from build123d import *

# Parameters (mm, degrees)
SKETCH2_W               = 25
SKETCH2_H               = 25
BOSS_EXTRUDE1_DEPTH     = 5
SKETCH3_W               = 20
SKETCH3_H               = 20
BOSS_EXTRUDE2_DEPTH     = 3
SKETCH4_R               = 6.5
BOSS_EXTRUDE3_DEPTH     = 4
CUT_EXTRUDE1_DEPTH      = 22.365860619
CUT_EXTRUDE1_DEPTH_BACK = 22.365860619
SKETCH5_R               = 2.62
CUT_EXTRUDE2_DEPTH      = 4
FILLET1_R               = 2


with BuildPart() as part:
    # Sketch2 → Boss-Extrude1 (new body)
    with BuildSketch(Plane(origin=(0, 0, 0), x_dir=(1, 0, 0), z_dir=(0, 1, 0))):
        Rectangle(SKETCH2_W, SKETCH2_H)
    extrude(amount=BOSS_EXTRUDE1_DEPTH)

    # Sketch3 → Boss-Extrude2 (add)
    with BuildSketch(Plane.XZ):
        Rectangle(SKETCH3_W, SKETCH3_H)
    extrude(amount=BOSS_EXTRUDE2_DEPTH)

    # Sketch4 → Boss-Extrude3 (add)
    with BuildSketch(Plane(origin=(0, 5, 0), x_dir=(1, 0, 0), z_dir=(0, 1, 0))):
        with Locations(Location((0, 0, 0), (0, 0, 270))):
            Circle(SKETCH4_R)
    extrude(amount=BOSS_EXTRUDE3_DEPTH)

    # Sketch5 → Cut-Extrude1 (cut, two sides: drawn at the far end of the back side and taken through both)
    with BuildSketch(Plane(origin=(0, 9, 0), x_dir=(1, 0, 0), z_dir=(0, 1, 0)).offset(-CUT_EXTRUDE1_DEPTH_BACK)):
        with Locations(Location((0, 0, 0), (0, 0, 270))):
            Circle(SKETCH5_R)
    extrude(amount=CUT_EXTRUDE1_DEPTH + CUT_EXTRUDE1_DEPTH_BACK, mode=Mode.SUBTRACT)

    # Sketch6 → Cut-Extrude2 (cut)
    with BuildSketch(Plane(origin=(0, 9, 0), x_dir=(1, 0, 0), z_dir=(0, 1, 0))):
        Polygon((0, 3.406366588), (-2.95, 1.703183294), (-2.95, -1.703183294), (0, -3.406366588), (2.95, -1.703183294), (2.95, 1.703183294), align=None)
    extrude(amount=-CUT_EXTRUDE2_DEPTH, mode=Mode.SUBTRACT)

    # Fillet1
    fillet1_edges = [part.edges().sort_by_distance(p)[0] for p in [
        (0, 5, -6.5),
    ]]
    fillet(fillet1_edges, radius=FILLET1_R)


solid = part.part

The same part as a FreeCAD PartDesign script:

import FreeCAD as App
import Part
import Sketcher
Q = App.Units.Quantity


def edges_at(feature, points):
    """Names of the edges that pass closest to the given points."""
    edges = feature.Shape.Edges
    near = lambda p: min(range(len(edges)), key=lambda i: edges[i].distToShape(Part.Vertex(*p))[0])
    return sorted({f"Edge{near(p) + 1}" for p in points})

doc = App.newDocument("Part")
body = doc.addObject("PartDesign::Body", "Body")

sketch1 = doc.addObject("Sketcher::SketchObject", "Sketch")
body.addObject(sketch1)
sketch1.AttachmentSupport = (doc.XZ_Plane, [""])
sketch1.MapMode = "FlatFace"
sketch1.addGeometry([
    Part.LineSegment(App.Vector(-12.5, -12.5, 0), App.Vector(-12.5, 12.5, 0)),
    Part.LineSegment(App.Vector(-12.5, 12.5, 0), App.Vector(12.5, 12.5, 0)),
    Part.LineSegment(App.Vector(12.5, 12.5, 0), App.Vector(12.5, -12.5, 0)),
    Part.LineSegment(App.Vector(12.5, -12.5, 0), App.Vector(-12.5, -12.5, 0)),
], False)
sketch1.addConstraint([
    Sketcher.Constraint("Coincident", 0, 2, 1, 1),
    Sketcher.Constraint("Coincident", 1, 2, 2, 1),
    Sketcher.Constraint("Coincident", 2, 2, 3, 1),
    Sketcher.Constraint("Coincident", 3, 2, 0, 1),
    Sketcher.Constraint("Vertical", 0),
    Sketcher.Constraint("Horizontal", 1),
    Sketcher.Constraint("Vertical", 2),
    Sketcher.Constraint("Horizontal", 3),
    Sketcher.Constraint("Symmetric", 0, 2, 2, 2, -1, 1),
    Sketcher.Constraint("Equal", 3, 0),
    Sketcher.Constraint("DistanceX", 1, 1, 1, 2, Q("25 mm")),
])
pad1 = doc.addObject("PartDesign::Pad", "Pad")
body.addObject(pad1)
pad1.Profile = sketch1
pad1.Length = 5
pad1.Reversed = True

sketch2 = doc.addObject("Sketcher::SketchObject", "Sketch001")
body.addObject(sketch2)
sketch2.AttachmentSupport = (doc.XZ_Plane, [""])
sketch2.MapMode = "FlatFace"
sketch2.addGeometry([
    Part.LineSegment(App.Vector(-10, 10, 0), App.Vector(-10, -10, 0)),
    Part.LineSegment(App.Vector(-10, -10, 0), App.Vector(10, -10, 0)),
    Part.LineSegment(App.Vector(10, -10, 0), App.Vector(10, 10, 0)),
    Part.LineSegment(App.Vector(10, 10, 0), App.Vector(-10, 10, 0)),
], False)
sketch2.addConstraint([
    Sketcher.Constraint("Coincident", 0, 2, 1, 1),
    Sketcher.Constraint("Coincident", 1, 2, 2, 1),
    Sketcher.Constraint("Coincident", 2, 2, 3, 1),
    Sketcher.Constraint("Coincident", 3, 2, 0, 1),
    Sketcher.Constraint("Vertical", 0),
    Sketcher.Constraint("Horizontal", 1),
    Sketcher.Constraint("Vertical", 2),
    Sketcher.Constraint("Horizontal", 3),
    Sketcher.Constraint("Symmetric", 0, 2, 2, 2, -1, 1),
    Sketcher.Constraint("Equal", 3, 0),
    Sketcher.Constraint("DistanceX", 1, 1, 1, 2, Q("20 mm")),
])
pad2 = doc.addObject("PartDesign::Pad", "Pad001")
body.addObject(pad2)
pad2.Profile = sketch2
pad2.Length = 3

sketch3 = doc.addObject("Sketcher::SketchObject", "Sketch002")
body.addObject(sketch3)
sketch3.AttachmentSupport = (doc.XZ_Plane, [""])
sketch3.MapMode = "FlatFace"
sketch3.AttachmentOffset = App.Placement(App.Vector(0, 0, -5), App.Rotation())
sketch3.addGeometry(Part.Circle(App.Vector(0, 0, 0), App.Vector(0, 0, 1), 6.5), False)
sketch3.addConstraint([
    Sketcher.Constraint("Coincident", 0, 3, -1, 1),
    Sketcher.Constraint("Diameter", 0, Q("13 mm")),
])
pad3 = doc.addObject("PartDesign::Pad", "Pad002")
body.addObject(pad3)
pad3.Profile = sketch3
pad3.Length = 4
pad3.Reversed = True

sketch4 = doc.addObject("Sketcher::SketchObject", "Sketch003")
body.addObject(sketch4)
sketch4.AttachmentSupport = (doc.XZ_Plane, [""])
sketch4.MapMode = "FlatFace"
sketch4.AttachmentOffset = App.Placement(App.Vector(0, 0, -9), App.Rotation())
sketch4.addGeometry(Part.Circle(App.Vector(0, 0, 0), App.Vector(0, 0, 1), 2.62), False)
sketch4.addConstraint([
    Sketcher.Constraint("Coincident", 0, 3, -1, 1),
    Sketcher.Constraint("Diameter", 0, Q("5.24 mm")),
])
pocket1 = doc.addObject("PartDesign::Pocket", "Pocket")
body.addObject(pocket1)
pocket1.Profile = sketch4
pocket1.Type = "ThroughAll"
pocket1.Midplane = True

sketch5 = doc.addObject("Sketcher::SketchObject", "Sketch004")
body.addObject(sketch5)
sketch5.AttachmentSupport = (doc.XZ_Plane, [""])
sketch5.MapMode = "FlatFace"
sketch5.AttachmentOffset = App.Placement(App.Vector(0, 0, -9), App.Rotation())
sketch5.addGeometry([
    Part.LineSegment(App.Vector(0, -3.406367, 0), App.Vector(-2.95, -1.703183, 0)),
    Part.LineSegment(App.Vector(-2.95, -1.703183, 0), App.Vector(-2.95, 1.703183, 0)),
    Part.LineSegment(App.Vector(-2.95, 1.703183, 0), App.Vector(0, 3.406367, 0)),
    Part.LineSegment(App.Vector(0, 3.406367, 0), App.Vector(2.95, 1.703183, 0)),
    Part.LineSegment(App.Vector(2.95, 1.703183, 0), App.Vector(2.95, -1.703183, 0)),
    Part.LineSegment(App.Vector(2.95, -1.703183, 0), App.Vector(0, -3.406367, 0)),
], False)
sketch5.addConstraint([
    Sketcher.Constraint("Coincident", 0, 2, 1, 1),
    Sketcher.Constraint("Coincident", 1, 2, 2, 1),
    Sketcher.Constraint("Coincident", 2, 2, 3, 1),
    Sketcher.Constraint("Coincident", 3, 2, 4, 1),
    Sketcher.Constraint("Coincident", 4, 2, 5, 1),
    Sketcher.Constraint("Coincident", 5, 2, 0, 1),
    Sketcher.Constraint("Vertical", 1),
    Sketcher.Constraint("Vertical", 4),
    Sketcher.Constraint("Symmetric", 0, 2, 3, 2, -1, 1),
    Sketcher.Constraint("Symmetric", 2, 2, 5, 2, -1, 1),
    Sketcher.Constraint("PointOnObject", 2, 2, -2),
    Sketcher.Constraint("Parallel", 2, 5),
    Sketcher.Constraint("Horizontal", 1, 2, 3, 2),
    Sketcher.Constraint("Angle", 0, Q("150 deg")),
    Sketcher.Constraint("DistanceX", 1, 2, 3, 2, Q("5.9 mm")),
    Sketcher.Constraint("DistanceY", 1, 1, 1, 2, Q("3.406367 mm")),
])
pocket2 = doc.addObject("PartDesign::Pocket", "Pocket001")
body.addObject(pocket2)
pocket2.Profile = sketch5
pocket2.Length = 4
pocket2.Reversed = True
doc.recompute()

fillet = doc.addObject("PartDesign::Fillet", "Fillet")
body.addObject(fillet)
fillet.Base = (pocket2, edges_at(pocket2, [(0, 5, -6.5)]))
fillet.Radius = 2

doc.recompute()
